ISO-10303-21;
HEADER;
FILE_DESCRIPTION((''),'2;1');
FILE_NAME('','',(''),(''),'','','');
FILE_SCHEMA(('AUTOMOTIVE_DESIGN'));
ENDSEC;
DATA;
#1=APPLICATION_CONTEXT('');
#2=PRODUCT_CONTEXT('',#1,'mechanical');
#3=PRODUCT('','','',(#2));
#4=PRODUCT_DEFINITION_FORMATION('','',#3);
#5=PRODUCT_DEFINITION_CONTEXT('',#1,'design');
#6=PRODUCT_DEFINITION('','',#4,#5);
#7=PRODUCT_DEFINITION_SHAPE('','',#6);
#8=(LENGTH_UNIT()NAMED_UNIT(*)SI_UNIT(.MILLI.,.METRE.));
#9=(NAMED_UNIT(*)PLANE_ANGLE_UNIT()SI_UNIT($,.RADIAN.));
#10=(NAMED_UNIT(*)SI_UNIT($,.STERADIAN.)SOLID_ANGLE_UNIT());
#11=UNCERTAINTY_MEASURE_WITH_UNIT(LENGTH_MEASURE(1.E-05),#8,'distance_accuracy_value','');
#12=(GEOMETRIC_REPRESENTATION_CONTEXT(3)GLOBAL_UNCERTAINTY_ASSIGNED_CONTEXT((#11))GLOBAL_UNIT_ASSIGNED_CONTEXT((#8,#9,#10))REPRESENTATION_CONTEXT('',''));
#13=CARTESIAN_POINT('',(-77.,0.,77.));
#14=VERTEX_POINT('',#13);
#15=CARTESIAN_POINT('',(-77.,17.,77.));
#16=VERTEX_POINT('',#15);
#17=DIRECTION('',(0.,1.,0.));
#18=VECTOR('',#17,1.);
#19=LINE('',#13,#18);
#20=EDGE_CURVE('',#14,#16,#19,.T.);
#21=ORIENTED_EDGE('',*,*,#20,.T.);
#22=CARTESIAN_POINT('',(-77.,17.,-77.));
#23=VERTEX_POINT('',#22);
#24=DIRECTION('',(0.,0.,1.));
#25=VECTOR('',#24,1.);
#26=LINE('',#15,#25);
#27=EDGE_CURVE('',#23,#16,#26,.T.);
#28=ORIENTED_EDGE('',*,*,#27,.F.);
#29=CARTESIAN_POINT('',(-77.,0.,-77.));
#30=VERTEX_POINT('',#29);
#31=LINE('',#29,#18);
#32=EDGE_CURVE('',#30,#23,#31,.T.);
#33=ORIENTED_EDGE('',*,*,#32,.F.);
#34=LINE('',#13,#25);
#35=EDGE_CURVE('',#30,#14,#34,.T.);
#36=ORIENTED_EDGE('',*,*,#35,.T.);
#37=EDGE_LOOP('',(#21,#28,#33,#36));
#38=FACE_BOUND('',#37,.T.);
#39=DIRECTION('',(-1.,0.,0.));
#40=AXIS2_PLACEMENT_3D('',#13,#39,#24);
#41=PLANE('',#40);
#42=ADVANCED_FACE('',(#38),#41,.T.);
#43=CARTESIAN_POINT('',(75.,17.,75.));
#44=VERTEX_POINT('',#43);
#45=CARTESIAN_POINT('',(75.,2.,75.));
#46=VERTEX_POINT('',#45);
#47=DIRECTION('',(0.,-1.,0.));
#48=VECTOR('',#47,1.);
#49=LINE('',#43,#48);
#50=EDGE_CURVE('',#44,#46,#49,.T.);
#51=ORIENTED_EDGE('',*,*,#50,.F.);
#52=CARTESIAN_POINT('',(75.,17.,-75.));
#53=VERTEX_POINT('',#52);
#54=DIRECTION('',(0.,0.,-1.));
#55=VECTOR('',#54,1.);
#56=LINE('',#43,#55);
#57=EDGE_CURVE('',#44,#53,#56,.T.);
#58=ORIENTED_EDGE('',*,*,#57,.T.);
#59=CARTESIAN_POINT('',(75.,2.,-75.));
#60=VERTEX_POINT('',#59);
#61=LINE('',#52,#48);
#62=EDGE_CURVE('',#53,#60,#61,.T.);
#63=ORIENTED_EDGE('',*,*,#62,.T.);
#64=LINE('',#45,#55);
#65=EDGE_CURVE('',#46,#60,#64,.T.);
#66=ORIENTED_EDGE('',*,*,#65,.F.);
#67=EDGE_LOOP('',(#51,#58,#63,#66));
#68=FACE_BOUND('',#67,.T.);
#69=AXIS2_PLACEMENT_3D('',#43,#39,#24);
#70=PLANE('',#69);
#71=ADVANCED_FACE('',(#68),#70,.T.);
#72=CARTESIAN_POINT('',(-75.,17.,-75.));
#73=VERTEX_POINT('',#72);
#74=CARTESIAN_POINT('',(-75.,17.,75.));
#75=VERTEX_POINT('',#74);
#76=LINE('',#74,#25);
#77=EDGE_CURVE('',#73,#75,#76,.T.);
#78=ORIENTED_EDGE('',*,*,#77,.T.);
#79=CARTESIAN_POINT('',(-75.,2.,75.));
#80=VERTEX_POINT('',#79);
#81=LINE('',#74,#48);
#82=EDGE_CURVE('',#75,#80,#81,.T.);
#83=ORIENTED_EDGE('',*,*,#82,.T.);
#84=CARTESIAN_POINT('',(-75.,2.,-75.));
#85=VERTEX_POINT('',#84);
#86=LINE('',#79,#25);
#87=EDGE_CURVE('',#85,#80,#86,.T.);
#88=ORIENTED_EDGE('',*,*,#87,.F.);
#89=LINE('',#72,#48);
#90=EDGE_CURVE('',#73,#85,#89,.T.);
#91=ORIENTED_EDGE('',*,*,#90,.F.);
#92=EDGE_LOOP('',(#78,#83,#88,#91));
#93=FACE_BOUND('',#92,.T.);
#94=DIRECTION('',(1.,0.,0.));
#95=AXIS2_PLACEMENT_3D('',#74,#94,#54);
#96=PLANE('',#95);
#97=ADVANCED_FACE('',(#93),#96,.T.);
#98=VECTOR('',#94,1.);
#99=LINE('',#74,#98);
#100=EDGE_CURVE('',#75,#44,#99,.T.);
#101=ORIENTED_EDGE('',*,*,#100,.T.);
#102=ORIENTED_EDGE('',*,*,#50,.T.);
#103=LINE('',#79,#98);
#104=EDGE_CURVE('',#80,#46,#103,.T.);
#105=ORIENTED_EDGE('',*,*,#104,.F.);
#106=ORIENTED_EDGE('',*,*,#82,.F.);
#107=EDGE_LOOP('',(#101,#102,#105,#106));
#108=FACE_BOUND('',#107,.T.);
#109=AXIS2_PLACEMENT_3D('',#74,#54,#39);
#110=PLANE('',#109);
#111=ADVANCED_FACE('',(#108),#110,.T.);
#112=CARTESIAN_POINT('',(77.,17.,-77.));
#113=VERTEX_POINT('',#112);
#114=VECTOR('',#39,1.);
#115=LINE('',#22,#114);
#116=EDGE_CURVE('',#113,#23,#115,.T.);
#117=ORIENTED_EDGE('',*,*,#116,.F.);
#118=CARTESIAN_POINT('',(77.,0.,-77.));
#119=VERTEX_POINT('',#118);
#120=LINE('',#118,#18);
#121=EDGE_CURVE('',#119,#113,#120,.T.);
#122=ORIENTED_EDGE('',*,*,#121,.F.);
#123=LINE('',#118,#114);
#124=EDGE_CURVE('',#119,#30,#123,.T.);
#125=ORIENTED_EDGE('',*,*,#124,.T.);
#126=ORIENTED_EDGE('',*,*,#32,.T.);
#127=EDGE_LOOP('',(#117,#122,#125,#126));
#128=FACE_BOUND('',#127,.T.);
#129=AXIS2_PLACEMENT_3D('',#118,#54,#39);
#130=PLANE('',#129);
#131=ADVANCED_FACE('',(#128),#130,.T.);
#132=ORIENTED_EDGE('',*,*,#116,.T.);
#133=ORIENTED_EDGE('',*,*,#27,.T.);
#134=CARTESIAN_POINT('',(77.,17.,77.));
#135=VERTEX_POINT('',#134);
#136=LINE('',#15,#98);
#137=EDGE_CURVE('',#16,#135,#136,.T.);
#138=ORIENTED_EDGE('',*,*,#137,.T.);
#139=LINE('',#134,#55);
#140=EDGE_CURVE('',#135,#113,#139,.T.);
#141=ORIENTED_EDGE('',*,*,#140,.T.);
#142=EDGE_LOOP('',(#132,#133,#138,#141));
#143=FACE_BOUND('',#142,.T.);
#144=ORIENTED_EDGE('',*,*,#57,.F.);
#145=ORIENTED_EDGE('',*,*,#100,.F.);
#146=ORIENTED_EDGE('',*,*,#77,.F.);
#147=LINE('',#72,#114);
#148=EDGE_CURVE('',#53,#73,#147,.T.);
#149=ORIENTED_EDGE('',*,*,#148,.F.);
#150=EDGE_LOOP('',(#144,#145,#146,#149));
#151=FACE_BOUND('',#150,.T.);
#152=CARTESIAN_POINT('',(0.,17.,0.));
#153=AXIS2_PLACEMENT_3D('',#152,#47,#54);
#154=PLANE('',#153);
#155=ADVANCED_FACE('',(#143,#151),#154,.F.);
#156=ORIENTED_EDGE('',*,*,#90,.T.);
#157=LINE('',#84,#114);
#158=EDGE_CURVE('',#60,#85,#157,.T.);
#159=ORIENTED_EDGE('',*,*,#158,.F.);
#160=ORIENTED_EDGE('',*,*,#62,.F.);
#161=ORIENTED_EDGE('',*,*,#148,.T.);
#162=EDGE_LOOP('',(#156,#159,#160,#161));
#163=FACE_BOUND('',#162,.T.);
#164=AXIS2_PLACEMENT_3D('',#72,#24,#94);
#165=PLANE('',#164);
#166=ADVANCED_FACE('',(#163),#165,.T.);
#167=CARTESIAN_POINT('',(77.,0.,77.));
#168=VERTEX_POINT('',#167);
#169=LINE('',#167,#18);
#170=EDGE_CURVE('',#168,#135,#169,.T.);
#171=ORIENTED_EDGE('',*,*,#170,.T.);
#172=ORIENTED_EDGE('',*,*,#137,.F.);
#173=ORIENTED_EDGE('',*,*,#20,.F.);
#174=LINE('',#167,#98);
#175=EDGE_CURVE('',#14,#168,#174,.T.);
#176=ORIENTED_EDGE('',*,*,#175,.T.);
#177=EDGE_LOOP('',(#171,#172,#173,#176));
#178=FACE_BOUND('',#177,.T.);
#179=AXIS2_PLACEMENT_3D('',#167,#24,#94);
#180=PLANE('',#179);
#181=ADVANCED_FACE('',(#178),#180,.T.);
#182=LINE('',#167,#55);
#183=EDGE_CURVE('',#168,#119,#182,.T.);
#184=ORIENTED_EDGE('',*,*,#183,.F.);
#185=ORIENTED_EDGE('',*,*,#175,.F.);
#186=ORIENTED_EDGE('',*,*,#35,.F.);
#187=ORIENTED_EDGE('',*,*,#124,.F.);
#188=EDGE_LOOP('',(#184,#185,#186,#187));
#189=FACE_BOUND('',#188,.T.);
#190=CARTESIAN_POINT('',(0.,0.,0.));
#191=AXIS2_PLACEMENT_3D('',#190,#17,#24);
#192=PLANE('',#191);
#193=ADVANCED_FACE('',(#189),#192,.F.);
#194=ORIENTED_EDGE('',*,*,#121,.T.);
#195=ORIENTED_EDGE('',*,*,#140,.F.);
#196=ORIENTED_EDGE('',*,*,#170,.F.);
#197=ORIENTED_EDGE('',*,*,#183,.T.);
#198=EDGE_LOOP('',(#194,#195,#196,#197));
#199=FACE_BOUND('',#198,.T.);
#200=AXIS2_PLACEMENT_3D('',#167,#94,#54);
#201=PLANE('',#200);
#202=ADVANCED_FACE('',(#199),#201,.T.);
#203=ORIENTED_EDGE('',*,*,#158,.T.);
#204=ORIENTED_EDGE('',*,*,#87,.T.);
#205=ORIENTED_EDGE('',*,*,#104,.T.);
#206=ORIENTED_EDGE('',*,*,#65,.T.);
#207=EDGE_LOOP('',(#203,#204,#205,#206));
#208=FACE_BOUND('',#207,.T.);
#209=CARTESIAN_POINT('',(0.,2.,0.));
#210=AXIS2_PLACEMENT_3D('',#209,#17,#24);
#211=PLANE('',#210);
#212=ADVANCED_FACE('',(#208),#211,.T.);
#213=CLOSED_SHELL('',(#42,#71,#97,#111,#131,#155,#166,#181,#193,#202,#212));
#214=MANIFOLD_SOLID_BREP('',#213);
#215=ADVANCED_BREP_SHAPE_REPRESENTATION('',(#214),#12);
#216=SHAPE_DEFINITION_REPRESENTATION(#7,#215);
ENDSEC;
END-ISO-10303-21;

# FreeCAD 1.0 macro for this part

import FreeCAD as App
import Part
import Sketcher

V = App.Vector
Q = App.Units.Quantity


def add_polygon(sketch, points):
    """Adds a closed chain of lines whose ends are joined by coincident constraints."""
    first, n = sketch.GeometryCount, len(points)
    for a, b in zip(points, points[1:] + points[:1]):
        sketch.addGeometry(Part.LineSegment(App.Vector(*a, 0), App.Vector(*b, 0)), False)
    for i in range(n):
        sketch.addConstraint(Sketcher.Constraint("Coincident", first + i, 2, first + (i + 1) % n, 1))

doc = App.newDocument("Part")
body = doc.addObject("PartDesign::Body", "Body")

sketch1 = body.newObject("Sketcher::SketchObject", "Sketch")
sketch1.AttachmentSupport = (doc.getObject("XZ_Plane"), [""])
sketch1.MapMode = "FlatFace"
add_polygon(sketch1, [(-75, -75), (-75, 75), (75, 75), (75, -75)])
sketch1.addConstraint([
    Sketcher.Constraint("Vertical", 0),
    Sketcher.Constraint("Horizontal", 1),
    Sketcher.Constraint("Vertical", 2),
    Sketcher.Constraint("Horizontal", 3),
    Sketcher.Constraint("Symmetric", 0, 2, 2, 2, -1, 1),
    Sketcher.Constraint("Equal", 3, 0),
    Sketcher.Constraint("DistanceX", 1, 1, 1, 2, Q("150 mm")),
])
pad1 = body.newObject("PartDesign::Pad", "Pad")
pad1.Profile = sketch1
pad1.Length = 2
pad1.Reversed = True

sketch2 = body.newObject("Sketcher::SketchObject", "Sketch001")
sketch2.AttachmentSupport = (doc.getObject("XZ_Plane"), [""])
sketch2.MapMode = "FlatFace"
sketch2.AttachmentOffset = App.Placement(V(0, 0, -2), App.Rotation())
add_polygon(sketch2, [(-77, -77), (-77, 77), (77, 77), (77, -77)])
sketch2.addConstraint([
    Sketcher.Constraint("Vertical", 0),
    Sketcher.Constraint("Horizontal", 1),
    Sketcher.Constraint("Vertical", 2),
    Sketcher.Constraint("Horizontal", 3),
    Sketcher.Constraint("Symmetric", 0, 2, 2, 2, -1, 1),
    Sketcher.Constraint("Equal", 3, 0),
    Sketcher.Constraint("DistanceX", 1, 1, 1, 2, Q("154 mm")),
])
pad2 = body.newObject("PartDesign::Pad", "Pad001")
pad2.Profile = sketch2
pad2.Length = 2

sketch3 = body.newObject("Sketcher::SketchObject", "Sketch002")
sketch3.AttachmentSupport = (doc.getObject("XZ_Plane"), [""])
sketch3.MapMode = "FlatFace"
sketch3.AttachmentOffset = App.Placement(V(0, 0, -2), App.Rotation())
add_polygon(sketch3, [(-77, -77), (-77, 77), (77, 77), (77, -77)])
add_polygon(sketch3, [(75, 75), (-75, 75), (-75, -75), (75, -75)])
sketch3.addConstraint([
    Sketcher.Constraint("Vertical", 0),
    Sketcher.Constraint("Horizontal", 1),
    Sketcher.Constraint("Vertical", 2),
    Sketcher.Constraint("Horizontal", 3),
    Sketcher.Constraint("Horizontal", 4),
    Sketcher.Constraint("Vertical", 5),
    Sketcher.Constraint("Horizontal", 6),
    Sketcher.Constraint("Vertical", 7),
    Sketcher.Constraint("Symmetric", 0, 2, 2, 2, -1, 1),
    Sketcher.Constraint("Symmetric", 4, 2, 6, 2, -1, 1),
    Sketcher.Constraint("Equal", 3, 0),
    Sketcher.Constraint("Equal", 6, 5),
    Sketcher.Constraint("DistanceX", 1, 1, 1, 2, Q("154 mm")),
    Sketcher.Constraint("DistanceX", 4, 2, 4, 1, Q("150 mm")),
])
pad3 = body.newObject("PartDesign::Pad", "Pad002")
pad3.Profile = sketch3
pad3.Length = 15
pad3.Reversed = True

doc.recompute()
